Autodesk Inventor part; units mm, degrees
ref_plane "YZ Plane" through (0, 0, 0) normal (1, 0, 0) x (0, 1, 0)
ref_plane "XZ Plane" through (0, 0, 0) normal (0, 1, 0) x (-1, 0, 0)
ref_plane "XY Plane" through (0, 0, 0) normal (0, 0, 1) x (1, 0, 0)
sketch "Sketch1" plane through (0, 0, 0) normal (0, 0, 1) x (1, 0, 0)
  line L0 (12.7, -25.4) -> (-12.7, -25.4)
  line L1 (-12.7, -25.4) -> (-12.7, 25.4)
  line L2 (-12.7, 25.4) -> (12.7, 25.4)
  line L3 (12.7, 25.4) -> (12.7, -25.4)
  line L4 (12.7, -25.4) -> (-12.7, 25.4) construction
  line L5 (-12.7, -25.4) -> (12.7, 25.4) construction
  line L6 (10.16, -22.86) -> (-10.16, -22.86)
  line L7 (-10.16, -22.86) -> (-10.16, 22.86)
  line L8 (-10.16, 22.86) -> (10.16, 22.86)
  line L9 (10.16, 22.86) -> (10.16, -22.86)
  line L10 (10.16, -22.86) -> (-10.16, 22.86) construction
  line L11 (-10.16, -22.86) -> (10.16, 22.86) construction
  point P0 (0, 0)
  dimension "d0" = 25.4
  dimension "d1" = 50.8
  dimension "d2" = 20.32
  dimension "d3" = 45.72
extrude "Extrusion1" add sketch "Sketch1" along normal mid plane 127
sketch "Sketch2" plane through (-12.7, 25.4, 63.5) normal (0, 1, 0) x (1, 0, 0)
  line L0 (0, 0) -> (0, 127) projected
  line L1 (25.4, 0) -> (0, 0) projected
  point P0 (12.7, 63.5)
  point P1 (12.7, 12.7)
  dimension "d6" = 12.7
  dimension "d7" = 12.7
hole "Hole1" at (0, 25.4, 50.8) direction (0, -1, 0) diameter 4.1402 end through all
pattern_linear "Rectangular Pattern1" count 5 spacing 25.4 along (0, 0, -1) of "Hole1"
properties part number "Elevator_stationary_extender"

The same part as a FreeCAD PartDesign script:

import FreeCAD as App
import Part
import Sketcher

V = App.Vector
Q = App.Units.Quantity


def add_polygon(sketch, points):
    """Adds a closed chain of lines whose ends are joined by coincident constraints."""
    first, n = sketch.GeometryCount, len(points)
    for a, b in zip(points, points[1:] + points[:1]):
        sketch.addGeometry(Part.LineSegment(App.Vector(*a, 0), App.Vector(*b, 0)), False)
    for i in range(n):
        sketch.addConstraint(Sketcher.Constraint("Coincident", first + i, 2, first + (i + 1) % n, 1))

doc = App.newDocument("Part")
params = doc.addObject("Spreadsheet::Sheet", "Params")
for row, (alias, value) in enumerate([
    ("sketch1_width", "1 in"),
    ("sketch1_height", "2 in"),
    ("sketch1_width2", "0.8 in"),
    ("sketch1_height2", "1.8 in"),
    ("pad1_length", "5 in"),
    ("sketch2_diameter", "0.163 in"),
    ("hole_diameter", "0.163 in"),
    ("linearpattern_pitch", "1 in"),
], start=1):
    params.set(f"A{row}", alias)
    params.set(f"B{row}", "=" + value)
    params.setAlias(f"B{row}", alias)

body = doc.addObject("PartDesign::Body", "Body")

# Sketch on XY plane
sketch1 = doc.addObject("Sketcher::SketchObject", "Sketch")
body.addObject(sketch1)
sketch1.AttachmentSupport = (doc.XY_Plane, [""])
sketch1.MapMode = "FlatFace"
add_polygon(sketch1, [(-13, -25), (13, -25), (13, 25), (-13, 25)])  # lines 0-3
add_polygon(sketch1, [(10, 23), (10, -23), (-10, -23), (-10, 23)])  # lines 4-7
sketch1.addConstraint([
    Sketcher.Constraint("Horizontal", 0),
    Sketcher.Constraint("Vertical", 1),
    Sketcher.Constraint("Horizontal", 2),
    Sketcher.Constraint("Vertical", 3),
    Sketcher.Constraint("Vertical", 4),
    Sketcher.Constraint("Horizontal", 5),
    Sketcher.Constraint("Vertical", 6),
    Sketcher.Constraint("Horizontal", 7),
    Sketcher.Constraint("Symmetric", 0, 2, 2, 2, -1, 1),
    Sketcher.Constraint("Symmetric", 4, 2, 6, 2, -1, 1),
    Sketcher.Constraint("DistanceX", 0, 1, 0, 2, Q("1 in")),
    Sketcher.Constraint("DistanceY", 1, 1, 1, 2, Q("2 in")),
    Sketcher.Constraint("DistanceX", 5, 2, 5, 1, Q("0.8 in")),
    Sketcher.Constraint("DistanceY", 4, 2, 4, 1, Q("1.8 in")),
])
sketch1.setExpression("Constraints[18]", "Params.sketch1_width")
sketch1.setExpression("Constraints[19]", "Params.sketch1_height")
sketch1.setExpression("Constraints[20]", "Params.sketch1_width2")
sketch1.setExpression("Constraints[21]", "Params.sketch1_height2")
pad1 = doc.addObject("PartDesign::Pad", "Pad")
body.addObject(pad1)
pad1.Profile = sketch1
pad1.setExpression("Length", "Params.pad1_length")
pad1.Midplane = True

# Sketch on XZ plane
sketch2 = doc.addObject("Sketcher::SketchObject", "Sketch001")
body.addObject(sketch2)
sketch2.AttachmentSupport = (doc.XZ_Plane, [""])
sketch2.MapMode = "FlatFace"
sketch2.AttachmentOffset = App.Placement(V(0, 0, -1 * 25.4), App.Rotation())
sketch2.addGeometry(Part.Circle(V(0, 50.8, 0), V(0, 0, 1), 2.1), False)
sketch2.addConstraint([
    Sketcher.Constraint("PointOnObject", 0, 3, -2),
    Sketcher.Constraint("Diameter", 0, Q("0.163 in")),
    Sketcher.Constraint("DistanceY", -1, 1, 0, 3, Q("2 in")),
])
sketch2.setExpression("Constraints[1]", "Params.sketch2_diameter")
doc.recompute()
hole = doc.addObject("PartDesign::Hole", "Hole")
body.addObject(hole)
hole.Profile = sketch2
hole.ThreadType = "None"
hole.setExpression("Diameter", "Params.hole_diameter")
hole.DepthType = "ThroughAll"
hole.Reversed = True
doc.recompute()

linearpattern = doc.addObject("PartDesign::LinearPattern", "LinearPattern")
body.addObject(linearpattern)
linearpattern.Originals = [hole]
linearpattern.Direction = (doc.Z_Axis, [""])
linearpattern.Mode = "offset"
linearpattern.setExpression("Offset", "Params.linearpattern_pitch")
linearpattern.Occurrences = 5
linearpattern.Reversed = True
body.Tip = linearpattern

doc.recompute()
